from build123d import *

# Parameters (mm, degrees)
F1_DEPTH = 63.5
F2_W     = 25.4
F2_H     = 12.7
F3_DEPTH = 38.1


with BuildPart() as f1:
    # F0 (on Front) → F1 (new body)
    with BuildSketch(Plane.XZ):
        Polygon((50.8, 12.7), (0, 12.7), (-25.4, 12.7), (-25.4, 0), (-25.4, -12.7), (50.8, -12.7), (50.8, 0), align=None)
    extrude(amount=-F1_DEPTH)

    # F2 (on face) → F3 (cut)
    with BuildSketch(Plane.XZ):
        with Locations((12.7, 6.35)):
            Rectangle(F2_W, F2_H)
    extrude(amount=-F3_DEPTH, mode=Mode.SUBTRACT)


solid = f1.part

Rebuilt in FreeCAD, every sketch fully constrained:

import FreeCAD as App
import Part
import Sketcher

V = App.Vector
Q = App.Units.Quantity


def add_polygon(sketch, points):
    """Adds a closed chain of lines whose ends are joined by coincident constraints."""
    first, n = sketch.GeometryCount, len(points)
    for a, b in zip(points, points[1:] + points[:1]):
        sketch.addGeometry(Part.LineSegment(App.Vector(*a, 0), App.Vector(*b, 0)), False)
    for i in range(n):
        sketch.addConstraint(Sketcher.Constraint("Coincident", first + i, 2, first + (i + 1) % n, 1))

doc = App.newDocument("Part")
body = doc.addObject("PartDesign::Body", "Body")

# Sketch on XZ plane
sketch1 = body.newObject("Sketcher::SketchObject", "Sketch")
sketch1.AttachmentSupport = (doc.getObject("XZ_Plane"), [""])
sketch1.MapMode = "FlatFace"
add_polygon(sketch1, [(51, 13), (-25, 13), (-25, -13), (51, -13)])  # lines 0-3
sketch1.addConstraint([
    Sketcher.Constraint("Horizontal", 0),
    Sketcher.Constraint("Vertical", 1),
    Sketcher.Constraint("Horizontal", 2),
    Sketcher.Constraint("Vertical", 3),
    Sketcher.Constraint("DistanceX", 0, 2, 0, 1, Q("3 in")),
    Sketcher.Constraint("DistanceY", 1, 2, 1, 1, Q("1 in")),
    Sketcher.Constraint("DistanceX", 0, 2, -1, 1, Q("1 in")),
    Sketcher.Constraint("DistanceY", -1, 1, 0, 2, Q("0.5 in")),
])
pad1 = body.newObject("PartDesign::Pad", "Pad")
pad1.Profile = sketch1
pad1.Length = Q("2.5 in")
pad1.Reversed = True

# Sketch on XZ plane
sketch2 = body.newObject("Sketcher::SketchObject", "Sketch001")
sketch2.AttachmentSupport = (doc.getObject("XZ_Plane"), [""])
sketch2.MapMode = "FlatFace"
add_polygon(sketch2, [(0, 13), (0, 0), (25, 0), (25, 13)])  # lines 0-3
sketch2.addConstraint([
    Sketcher.Constraint("Vertical", 0),
    Sketcher.Constraint("Horizontal", 1),
    Sketcher.Constraint("Vertical", 2),
    Sketcher.Constraint("Horizontal", 3),
    Sketcher.Constraint("Coincident", 0, 2, -1, 1),
    Sketcher.Constraint("DistanceX", 1, 1, 1, 2, Q("1 in")),
    Sketcher.Constraint("DistanceY", 0, 2, 0, 1, Q("0.5 in")),
])
pocket1 = body.newObject("PartDesign::Pocket", "Pocket")
pocket1.Profile = sketch2
pocket1.Length = Q("1.5 in")

doc.recompute()
